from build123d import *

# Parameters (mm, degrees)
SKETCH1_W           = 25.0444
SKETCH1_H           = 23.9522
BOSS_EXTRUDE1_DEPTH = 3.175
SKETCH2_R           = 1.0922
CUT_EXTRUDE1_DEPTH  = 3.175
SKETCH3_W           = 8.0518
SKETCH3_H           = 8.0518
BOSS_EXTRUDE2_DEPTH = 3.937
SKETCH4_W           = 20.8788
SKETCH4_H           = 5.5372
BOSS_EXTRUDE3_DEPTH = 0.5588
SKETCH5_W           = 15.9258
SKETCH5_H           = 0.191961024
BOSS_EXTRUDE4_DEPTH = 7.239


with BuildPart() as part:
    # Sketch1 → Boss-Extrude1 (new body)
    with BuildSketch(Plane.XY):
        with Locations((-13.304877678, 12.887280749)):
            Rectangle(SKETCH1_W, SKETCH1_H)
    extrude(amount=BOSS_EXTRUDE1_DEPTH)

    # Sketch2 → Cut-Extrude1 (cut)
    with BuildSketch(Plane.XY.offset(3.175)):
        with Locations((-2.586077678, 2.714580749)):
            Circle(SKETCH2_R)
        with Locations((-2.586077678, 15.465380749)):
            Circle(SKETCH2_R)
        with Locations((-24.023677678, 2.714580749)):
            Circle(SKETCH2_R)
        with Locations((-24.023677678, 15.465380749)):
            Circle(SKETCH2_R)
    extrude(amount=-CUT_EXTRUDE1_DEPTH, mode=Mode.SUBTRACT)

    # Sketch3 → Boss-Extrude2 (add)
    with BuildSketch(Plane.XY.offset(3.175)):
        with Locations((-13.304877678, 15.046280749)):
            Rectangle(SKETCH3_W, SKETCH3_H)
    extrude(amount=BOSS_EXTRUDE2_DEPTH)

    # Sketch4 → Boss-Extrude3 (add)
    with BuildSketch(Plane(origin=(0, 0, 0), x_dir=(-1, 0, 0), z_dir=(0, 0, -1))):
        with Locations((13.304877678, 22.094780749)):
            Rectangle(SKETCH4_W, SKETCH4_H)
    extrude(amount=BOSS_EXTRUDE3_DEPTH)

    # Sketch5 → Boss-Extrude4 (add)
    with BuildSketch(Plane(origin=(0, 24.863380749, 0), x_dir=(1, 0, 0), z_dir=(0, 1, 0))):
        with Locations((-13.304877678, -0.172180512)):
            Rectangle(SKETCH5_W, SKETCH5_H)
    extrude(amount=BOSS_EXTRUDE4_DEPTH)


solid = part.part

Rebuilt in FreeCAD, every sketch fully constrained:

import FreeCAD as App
import Part
import Sketcher
from FreeCAD import Vector
Q = App.Units.Quantity

doc = App.newDocument("Part")
params = doc.addObject("Spreadsheet::Sheet", "Params")
for row, (alias, value) in enumerate([
    ("sketch1_width", "0.986 in"),
    ("sketch1_height", "0.943 in"),
    ("pad1_length", "0.125 in"),
    ("sketch2_diameter", "0.086 in"),
    ("pocket1_length", "0.125 in"),
    ("sketch3_width", "0.317 in"),
    ("pad2_length", "0.155 in"),
    ("sketch4_width", "0.822 in"),
    ("sketch4_height", "0.218 in"),
    ("pad3_length", "0.022 in"),
    ("sketch5_width", "0.627 in"),
    ("pad4_length", "0.285 in"),
], start=1):
    params.set(f"A{row}", alias)
    params.set(f"B{row}", "=" + value)
    params.setAlias(f"B{row}", alias)

body = doc.addObject("PartDesign::Body", "Body")

# Sketch on XY plane
sketch1 = body.newObject("Sketcher::SketchObject", "Sketch")
sketch1.AttachmentSupport = (doc.getObject("XY_Plane"), [""])
sketch1.MapMode = "FlatFace"
sketch1.addGeometry(Part.LineSegment(Vector(-26, 25, 0), Vector(-26, 1, 0)), False)
sketch1.addGeometry(Part.LineSegment(Vector(-26, 1, 0), Vector(-1, 1, 0)), False)
sketch1.addGeometry(Part.LineSegment(Vector(-1, 1, 0), Vector(-1, 25, 0)), False)
sketch1.addGeometry(Part.LineSegment(Vector(-1, 25, 0), Vector(-26, 25, 0)), False)
sketch1.addConstraint(Sketcher.Constraint("Coincident", 0, 2, 1, 1))
sketch1.addConstraint(Sketcher.Constraint("Coincident", 1, 2, 2, 1))
sketch1.addConstraint(Sketcher.Constraint("Coincident", 2, 2, 3, 1))
sketch1.addConstraint(Sketcher.Constraint("Coincident", 3, 2, 0, 1))
sketch1.addConstraint(Sketcher.Constraint("Vertical", 0))
sketch1.addConstraint(Sketcher.Constraint("Horizontal", 1))
sketch1.addConstraint(Sketcher.Constraint("Vertical", 2))
sketch1.addConstraint(Sketcher.Constraint("Horizontal", 3))
sketch1.addConstraint(Sketcher.Constraint("DistanceX", 1, 1, 1, 2, Q("0.986 in")))
sketch1.addConstraint(Sketcher.Constraint("DistanceY", 0, 2, 0, 1, Q("0.943 in")))
sketch1.addConstraint(Sketcher.Constraint("DistanceY", -1, 1, 0, 2, 0.911181))
sketch1.addConstraint(Sketcher.Constraint("DistanceX", 0, 2, -1, 1, 25.827078))
sketch1.setExpression("Constraints[8]", "Params.sketch1_width")
sketch1.setExpression("Constraints[9]", "Params.sketch1_height")
pad1 = body.newObject("PartDesign::Pad", "Pad")
pad1.Profile = sketch1
pad1.setExpression("Length", "Params.pad1_length")

# Sketch on XY plane
sketch2 = body.newObject("Sketcher::SketchObject", "Sketch001")
sketch2.AttachmentSupport = (doc.getObject("XY_Plane"), [""])
sketch2.MapMode = "FlatFace"
sketch2.AttachmentOffset = App.Placement(Vector(0, 0, 0.125 * 25.4), App.Rotation())
sketch2.addGeometry(Part.Circle(Vector(-2.6, 2.7, 0), Vector(0, 0, 1), 1.1), False)
sketch2.addGeometry(Part.Circle(Vector(-2.6, 15.5, 0), Vector(0, 0, 1), 1.1), False)
sketch2.addGeometry(Part.Circle(Vector(-24, 2.7, 0), Vector(0, 0, 1), 1.1), False)
sketch2.addGeometry(Part.Circle(Vector(-24, 15.5, 0), Vector(0, 0, 1), 1.1), False)
sketch2.addConstraint(Sketcher.Constraint("Equal", 0, 1))
sketch2.addConstraint(Sketcher.Constraint("Equal", 1, 2))
sketch2.addConstraint(Sketcher.Constraint("Equal", 2, 3))
sketch2.addConstraint(Sketcher.Constraint("Horizontal", 0, 3, 2, 3))
sketch2.addConstraint(Sketcher.Constraint("Horizontal", 1, 3, 3, 3))
sketch2.addConstraint(Sketcher.Constraint("Vertical", 0, 3, 1, 3))
sketch2.addConstraint(Sketcher.Constraint("Vertical", 2, 3, 3, 3))
sketch2.addConstraint(Sketcher.Constraint("Diameter", 0, Q("0.086 in")))
sketch2.addConstraint(Sketcher.Constraint("DistanceY", 0, 3, 1, 3, Q("0.502 in")))
sketch2.addConstraint(Sketcher.Constraint("DistanceX", 2, 3, 0, 3, Q("0.844 in")))
sketch2.addConstraint(Sketcher.Constraint("DistanceY", -1, 1, 0, 3, 2.714581))
sketch2.addConstraint(Sketcher.Constraint("DistanceX", 0, 3, -1, 1, 2.586078))
sketch2.setExpression("Constraints[7]", "Params.sketch2_diameter")
pocket1 = body.newObject("PartDesign::Pocket", "Pocket")
pocket1.Profile = sketch2
pocket1.setExpression("Length", "Params.pocket1_length")

# Sketch on XY plane
sketch3 = body.newObject("Sketcher::SketchObject", "Sketch002")
sketch3.AttachmentSupport = (doc.getObject("XY_Plane"), [""])
sketch3.MapMode = "FlatFace"
sketch3.AttachmentOffset = App.Placement(Vector(0, 0, 0.125 * 25.4), App.Rotation())
sketch3.addGeometry(Part.LineSegment(Vector(-17, 19, 0), Vector(-17, 11, 0)), False)
sketch3.addGeometry(Part.LineSegment(Vector(-17, 11, 0), Vector(-9, 11, 0)), False)
sketch3.addGeometry(Part.LineSegment(Vector(-9, 11, 0), Vector(-9, 19, 0)), False)
sketch3.addGeometry(Part.LineSegment(Vector(-9, 19, 0), Vector(-17, 19, 0)), False)
sketch3.addConstraint(Sketcher.Constraint("Coincident", 0, 2, 1, 1))
sketch3.addConstraint(Sketcher.Constraint("Coincident", 1, 2, 2, 1))
sketch3.addConstraint(Sketcher.Constraint("Coincident", 2, 2, 3, 1))
sketch3.addConstraint(Sketcher.Constraint("Coincident", 3, 2, 0, 1))
sketch3.addConstraint(Sketcher.Constraint("Vertical", 0))
sketch3.addConstraint(Sketcher.Constraint("Horizontal", 1))
sketch3.addConstraint(Sketcher.Constraint("Vertical", 2))
sketch3.addConstraint(Sketcher.Constraint("Horizontal", 3))
sketch3.addConstraint(Sketcher.Constraint("Equal", 3, 0))
sketch3.addConstraint(Sketcher.Constraint("DistanceX", 1, 1, 1, 2, Q("0.317 in")))
sketch3.addConstraint(Sketcher.Constraint("DistanceY", -1, 1, 0, 2, 11.020381))
sketch3.addConstraint(Sketcher.Constraint("DistanceX", 0, 2, -1, 1, 17.330778))
sketch3.setExpression("Constraints[9]", "Params.sketch3_width")
pad2 = body.newObject("PartDesign::Pad", "Pad001")
pad2.Profile = sketch3
pad2.setExpression("Length", "Params.pad2_length")

# Sketch on XY plane
sketch4 = body.newObject("Sketcher::SketchObject", "Sketch003")
sketch4.AttachmentSupport = (doc.getObject("XY_Plane"), [""])
sketch4.MapMode = "FlatFace"
sketch4.addGeometry(Part.LineSegment(Vector(-3, 25, 0), Vector(-3, 19, 0)), False)
sketch4.addGeometry(Part.LineSegment(Vector(-3, 19, 0), Vector(-24, 19, 0)), False)
sketch4.addGeometry(Part.LineSegment(Vector(-24, 19, 0), Vector(-24, 25, 0)), False)
sketch4.addGeometry(Part.LineSegment(Vector(-24, 25, 0), Vector(-3, 25, 0)), False)
sketch4.addConstraint(Sketcher.Constraint("Coincident", 0, 2, 1, 1))
sketch4.addConstraint(Sketcher.Constraint("Coincident", 1, 2, 2, 1))
sketch4.addConstraint(Sketcher.Constraint("Coincident", 2, 2, 3, 1))
sketch4.addConstraint(Sketcher.Constraint("Coincident", 3, 2, 0, 1))
sketch4.addConstraint(Sketcher.Constraint("Vertical", 0))
sketch4.addConstraint(Sketcher.Constraint("Horizontal", 1))
sketch4.addConstraint(Sketcher.Constraint("Vertical", 2))
sketch4.addConstraint(Sketcher.Constraint("Horizontal", 3))
sketch4.addConstraint(Sketcher.Constraint("DistanceX", 1, 2, 1, 1, Q("0.822 in")))
sketch4.addConstraint(Sketcher.Constraint("DistanceY", 0, 2, 0, 1, Q("0.218 in")))
sketch4.addConstraint(Sketcher.Constraint("DistanceY", -1, 1, 0, 2, 19.326181))
sketch4.addConstraint(Sketcher.Constraint("DistanceX", 0, 2, -1, 1, 2.865478))
sketch4.setExpression("Constraints[8]", "Params.sketch4_width")
sketch4.setExpression("Constraints[9]", "Params.sketch4_height")
pad3 = body.newObject("PartDesign::Pad", "Pad002")
pad3.Profile = sketch4
pad3.setExpression("Length", "Params.pad3_length")
pad3.Reversed = True

# Sketch on XZ plane
sketch5 = body.newObject("Sketcher::SketchObject", "Sketch004")
sketch5.AttachmentSupport = (doc.getObject("XZ_Plane"), [""])
sketch5.MapMode = "FlatFace"
sketch5.AttachmentOffset = App.Placement(Vector(0, 0, -24.863381), App.Rotation())
sketch5.addGeometry(Part.LineSegment(Vector(-21.27, 0.08, 0), Vector(-21.27, 0.27, 0)), False)
sketch5.addGeometry(Part.LineSegment(Vector(-21.27, 0.27, 0), Vector(-5.34, 0.27, 0)), False)
sketch5.addGeometry(Part.LineSegment(Vector(-5.34, 0.27, 0), Vector(-5.34, 0.08, 0)), False)
sketch5.addGeometry(Part.LineSegment(Vector(-5.34, 0.08, 0), Vector(-21.27, 0.08, 0)), False)
sketch5.addConstraint(Sketcher.Constraint("Coincident", 0, 2, 1, 1))
sketch5.addConstraint(Sketcher.Constraint("Coincident", 1, 2, 2, 1))
sketch5.addConstraint(Sketcher.Constraint("Coincident", 2, 2, 3, 1))
sketch5.addConstraint(Sketcher.Constraint("Coincident", 3, 2, 0, 1))
sketch5.addConstraint(Sketcher.Constraint("Vertical", 0))
sketch5.addConstraint(Sketcher.Constraint("Horizontal", 1))
sketch5.addConstraint(Sketcher.Constraint("Vertical", 2))
sketch5.addConstraint(Sketcher.Constraint("Horizontal", 3))
sketch5.addConstraint(Sketcher.Constraint("DistanceX", 1, 1, 1, 2, Q("0.627 in")))
sketch5.addConstraint(Sketcher.Constraint("DistanceY", -1, 1, 2, 2, Q("0.003 in")))
sketch5.addConstraint(Sketcher.Constraint("DistanceY", 0, 1, 0, 2, 0.191961))
sketch5.addConstraint(Sketcher.Constraint("DistanceX", 0, 2, -1, 1, 21.267778))
sketch5.setExpression("Constraints[8]", "Params.sketch5_width")
pad4 = body.newObject("PartDesign::Pad", "Pad003")
pad4.Profile = sketch5
pad4.setExpression("Length", "Params.pad4_length")
pad4.Reversed = True

doc.recompute()
